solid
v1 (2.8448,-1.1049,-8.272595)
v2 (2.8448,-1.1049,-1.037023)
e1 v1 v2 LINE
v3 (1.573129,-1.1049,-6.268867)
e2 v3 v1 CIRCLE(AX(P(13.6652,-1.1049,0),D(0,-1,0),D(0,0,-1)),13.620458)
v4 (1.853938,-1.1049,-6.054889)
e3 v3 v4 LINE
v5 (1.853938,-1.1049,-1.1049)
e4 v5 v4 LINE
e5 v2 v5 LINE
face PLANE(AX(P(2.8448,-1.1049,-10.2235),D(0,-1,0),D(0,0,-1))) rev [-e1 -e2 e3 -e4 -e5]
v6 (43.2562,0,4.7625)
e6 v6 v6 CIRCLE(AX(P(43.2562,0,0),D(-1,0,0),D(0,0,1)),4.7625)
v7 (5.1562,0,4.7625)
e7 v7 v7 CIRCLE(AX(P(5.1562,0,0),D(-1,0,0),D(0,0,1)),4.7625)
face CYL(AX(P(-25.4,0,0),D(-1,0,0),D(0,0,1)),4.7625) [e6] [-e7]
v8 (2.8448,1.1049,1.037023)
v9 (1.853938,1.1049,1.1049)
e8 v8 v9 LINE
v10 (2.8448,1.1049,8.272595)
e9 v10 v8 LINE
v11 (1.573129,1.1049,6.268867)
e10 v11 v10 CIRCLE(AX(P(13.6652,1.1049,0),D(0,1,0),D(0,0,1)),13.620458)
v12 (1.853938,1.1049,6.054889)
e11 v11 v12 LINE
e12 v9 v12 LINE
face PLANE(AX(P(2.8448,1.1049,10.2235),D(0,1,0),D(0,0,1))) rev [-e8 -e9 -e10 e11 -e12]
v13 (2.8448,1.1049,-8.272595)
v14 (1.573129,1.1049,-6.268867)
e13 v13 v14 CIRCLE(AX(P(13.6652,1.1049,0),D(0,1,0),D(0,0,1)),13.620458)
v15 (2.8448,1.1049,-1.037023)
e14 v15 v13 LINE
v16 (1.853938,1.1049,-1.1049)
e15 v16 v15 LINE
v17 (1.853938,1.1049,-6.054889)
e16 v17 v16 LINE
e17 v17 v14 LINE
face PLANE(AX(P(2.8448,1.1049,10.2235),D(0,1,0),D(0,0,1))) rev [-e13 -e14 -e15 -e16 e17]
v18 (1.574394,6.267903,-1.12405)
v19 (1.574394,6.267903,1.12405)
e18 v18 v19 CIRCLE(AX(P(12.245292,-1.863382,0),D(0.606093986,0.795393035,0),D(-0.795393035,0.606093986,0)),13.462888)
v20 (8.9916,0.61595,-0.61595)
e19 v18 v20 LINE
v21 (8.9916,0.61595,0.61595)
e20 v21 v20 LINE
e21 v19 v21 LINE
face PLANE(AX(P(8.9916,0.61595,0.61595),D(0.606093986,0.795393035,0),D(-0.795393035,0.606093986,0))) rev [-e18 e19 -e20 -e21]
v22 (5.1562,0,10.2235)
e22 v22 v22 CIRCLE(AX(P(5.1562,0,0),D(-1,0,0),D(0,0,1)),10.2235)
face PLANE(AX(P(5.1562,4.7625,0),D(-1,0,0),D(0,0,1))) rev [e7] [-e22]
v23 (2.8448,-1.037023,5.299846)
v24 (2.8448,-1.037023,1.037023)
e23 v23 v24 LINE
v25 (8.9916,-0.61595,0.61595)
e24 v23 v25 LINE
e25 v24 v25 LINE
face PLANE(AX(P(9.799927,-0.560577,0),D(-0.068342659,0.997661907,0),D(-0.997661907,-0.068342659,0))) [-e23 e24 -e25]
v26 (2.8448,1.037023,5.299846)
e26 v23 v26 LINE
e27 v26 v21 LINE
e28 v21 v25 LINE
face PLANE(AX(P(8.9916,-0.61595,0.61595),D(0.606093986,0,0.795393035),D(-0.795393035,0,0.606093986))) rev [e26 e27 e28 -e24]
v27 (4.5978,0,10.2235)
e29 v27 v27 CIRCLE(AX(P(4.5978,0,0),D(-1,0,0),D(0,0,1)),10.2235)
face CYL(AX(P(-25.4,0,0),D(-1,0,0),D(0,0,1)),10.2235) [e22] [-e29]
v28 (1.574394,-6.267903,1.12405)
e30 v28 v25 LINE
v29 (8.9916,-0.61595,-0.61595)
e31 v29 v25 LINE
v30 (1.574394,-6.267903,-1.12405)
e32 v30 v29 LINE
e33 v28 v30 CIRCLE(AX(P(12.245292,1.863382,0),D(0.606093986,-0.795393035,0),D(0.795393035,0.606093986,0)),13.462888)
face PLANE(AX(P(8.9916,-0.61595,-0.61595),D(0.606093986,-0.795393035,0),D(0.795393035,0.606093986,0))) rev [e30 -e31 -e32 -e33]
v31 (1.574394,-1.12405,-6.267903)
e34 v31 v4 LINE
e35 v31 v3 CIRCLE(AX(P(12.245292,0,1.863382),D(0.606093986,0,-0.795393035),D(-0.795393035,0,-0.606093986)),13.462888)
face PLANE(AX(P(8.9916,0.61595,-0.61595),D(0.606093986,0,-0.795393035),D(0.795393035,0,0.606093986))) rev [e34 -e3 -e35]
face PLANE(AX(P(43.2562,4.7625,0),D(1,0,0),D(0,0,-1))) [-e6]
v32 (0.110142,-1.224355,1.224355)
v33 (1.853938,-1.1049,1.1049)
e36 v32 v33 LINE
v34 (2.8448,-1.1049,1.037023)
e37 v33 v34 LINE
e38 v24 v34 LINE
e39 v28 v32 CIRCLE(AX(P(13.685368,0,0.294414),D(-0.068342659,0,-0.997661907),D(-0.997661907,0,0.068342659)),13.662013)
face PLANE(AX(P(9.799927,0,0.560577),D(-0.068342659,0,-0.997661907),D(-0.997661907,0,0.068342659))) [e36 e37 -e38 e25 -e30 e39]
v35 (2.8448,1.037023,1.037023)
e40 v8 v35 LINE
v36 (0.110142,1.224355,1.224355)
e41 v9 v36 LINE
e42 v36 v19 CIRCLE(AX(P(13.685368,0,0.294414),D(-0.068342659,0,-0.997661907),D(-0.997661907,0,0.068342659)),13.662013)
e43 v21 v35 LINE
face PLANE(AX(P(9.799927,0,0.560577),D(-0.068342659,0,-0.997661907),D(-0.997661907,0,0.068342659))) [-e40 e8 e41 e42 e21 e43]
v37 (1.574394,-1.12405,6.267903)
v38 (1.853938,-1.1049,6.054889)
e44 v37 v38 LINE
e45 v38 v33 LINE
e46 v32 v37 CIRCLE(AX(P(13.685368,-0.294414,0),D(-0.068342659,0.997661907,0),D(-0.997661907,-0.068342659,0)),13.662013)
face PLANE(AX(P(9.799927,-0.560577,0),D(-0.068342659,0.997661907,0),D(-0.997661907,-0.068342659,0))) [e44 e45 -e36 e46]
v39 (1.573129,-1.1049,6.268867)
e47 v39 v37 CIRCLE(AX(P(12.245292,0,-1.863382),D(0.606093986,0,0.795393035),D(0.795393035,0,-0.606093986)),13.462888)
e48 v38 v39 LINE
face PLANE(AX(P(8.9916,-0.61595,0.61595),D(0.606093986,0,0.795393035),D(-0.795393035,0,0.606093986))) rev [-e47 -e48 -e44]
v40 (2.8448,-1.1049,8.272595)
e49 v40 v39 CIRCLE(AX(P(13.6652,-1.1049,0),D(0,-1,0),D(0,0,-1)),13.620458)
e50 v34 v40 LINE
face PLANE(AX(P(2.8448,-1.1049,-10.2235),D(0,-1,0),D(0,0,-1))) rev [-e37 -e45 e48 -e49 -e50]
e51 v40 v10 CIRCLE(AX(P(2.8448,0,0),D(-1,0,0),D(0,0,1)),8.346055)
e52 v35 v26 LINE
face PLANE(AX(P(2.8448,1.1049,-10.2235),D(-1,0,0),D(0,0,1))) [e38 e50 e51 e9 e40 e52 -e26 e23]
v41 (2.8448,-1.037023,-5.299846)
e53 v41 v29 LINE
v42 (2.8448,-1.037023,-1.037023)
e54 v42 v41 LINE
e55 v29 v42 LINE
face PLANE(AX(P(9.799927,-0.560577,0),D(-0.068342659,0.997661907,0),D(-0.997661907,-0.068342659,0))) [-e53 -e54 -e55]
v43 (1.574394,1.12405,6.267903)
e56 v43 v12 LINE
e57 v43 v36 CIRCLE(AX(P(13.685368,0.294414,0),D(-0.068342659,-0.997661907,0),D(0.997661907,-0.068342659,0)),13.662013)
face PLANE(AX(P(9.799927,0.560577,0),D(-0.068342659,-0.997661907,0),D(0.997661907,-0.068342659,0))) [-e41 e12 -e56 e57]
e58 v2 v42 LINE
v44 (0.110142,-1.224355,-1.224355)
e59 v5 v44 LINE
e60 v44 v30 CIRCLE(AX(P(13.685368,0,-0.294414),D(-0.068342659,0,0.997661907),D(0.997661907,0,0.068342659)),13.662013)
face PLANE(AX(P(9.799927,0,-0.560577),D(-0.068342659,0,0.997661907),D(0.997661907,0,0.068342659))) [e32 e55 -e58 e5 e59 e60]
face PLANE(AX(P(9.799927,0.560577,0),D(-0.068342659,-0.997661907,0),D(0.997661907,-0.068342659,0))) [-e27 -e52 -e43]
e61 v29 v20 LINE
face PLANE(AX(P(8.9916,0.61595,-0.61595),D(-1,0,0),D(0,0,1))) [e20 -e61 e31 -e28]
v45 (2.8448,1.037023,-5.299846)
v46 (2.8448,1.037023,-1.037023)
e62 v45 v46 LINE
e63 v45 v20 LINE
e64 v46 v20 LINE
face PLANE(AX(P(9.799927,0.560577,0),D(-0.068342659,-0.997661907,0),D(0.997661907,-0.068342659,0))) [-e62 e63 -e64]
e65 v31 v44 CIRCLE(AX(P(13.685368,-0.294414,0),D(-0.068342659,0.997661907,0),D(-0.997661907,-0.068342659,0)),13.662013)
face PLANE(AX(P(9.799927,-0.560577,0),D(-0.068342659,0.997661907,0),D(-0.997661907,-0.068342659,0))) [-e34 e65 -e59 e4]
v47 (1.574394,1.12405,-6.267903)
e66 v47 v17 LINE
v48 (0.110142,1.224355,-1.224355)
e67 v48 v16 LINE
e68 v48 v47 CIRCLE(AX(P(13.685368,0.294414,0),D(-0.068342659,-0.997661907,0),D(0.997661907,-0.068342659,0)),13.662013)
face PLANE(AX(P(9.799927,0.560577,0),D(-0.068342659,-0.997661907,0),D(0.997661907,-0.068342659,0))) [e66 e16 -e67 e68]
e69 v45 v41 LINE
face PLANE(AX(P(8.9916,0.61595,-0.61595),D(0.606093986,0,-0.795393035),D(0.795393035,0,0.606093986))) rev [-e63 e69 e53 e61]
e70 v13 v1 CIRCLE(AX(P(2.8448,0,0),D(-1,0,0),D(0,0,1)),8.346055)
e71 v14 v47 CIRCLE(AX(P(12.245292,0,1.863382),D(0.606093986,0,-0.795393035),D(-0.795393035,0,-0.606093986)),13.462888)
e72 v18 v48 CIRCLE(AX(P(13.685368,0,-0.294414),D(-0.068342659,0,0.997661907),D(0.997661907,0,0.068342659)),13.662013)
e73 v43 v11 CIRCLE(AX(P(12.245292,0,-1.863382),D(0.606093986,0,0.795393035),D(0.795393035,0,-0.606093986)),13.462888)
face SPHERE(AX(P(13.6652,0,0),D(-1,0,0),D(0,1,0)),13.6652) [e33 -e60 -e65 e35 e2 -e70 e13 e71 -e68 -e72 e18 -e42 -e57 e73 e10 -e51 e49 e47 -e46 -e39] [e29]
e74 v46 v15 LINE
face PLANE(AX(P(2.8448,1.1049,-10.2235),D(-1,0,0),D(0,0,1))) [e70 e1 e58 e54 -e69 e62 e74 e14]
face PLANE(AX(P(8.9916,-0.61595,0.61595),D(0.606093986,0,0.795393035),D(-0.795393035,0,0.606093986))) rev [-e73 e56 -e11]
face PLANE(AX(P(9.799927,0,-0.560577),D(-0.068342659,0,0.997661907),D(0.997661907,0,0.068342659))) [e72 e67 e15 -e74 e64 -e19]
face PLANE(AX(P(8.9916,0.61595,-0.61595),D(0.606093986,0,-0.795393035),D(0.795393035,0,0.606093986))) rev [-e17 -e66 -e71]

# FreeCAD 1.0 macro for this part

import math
import FreeCAD as App
import Part
import Sketcher

V = App.Vector
Q = App.Units.Quantity

doc = App.newDocument("Part")
body = doc.addObject("PartDesign::Body", "Body")

# Sketch on XY plane
sketch1 = body.newObject("Sketcher::SketchObject", "Sketch")
sketch1.AttachmentSupport = (doc.getObject("XY_Plane"), [""])
sketch1.MapMode = "FlatFace"
sketch1.addGeometry([
    Part.LineSegment(V(5.2, 4.8, 0), V(5.2, 10.2, 0)),  # 0
    Part.LineSegment(V(5.2, 10.2, 0), V(4.6, 10.2, 0)),  # 1
    Part.ArcOfCircle(Part.Circle(V(13.7, 0, 0), V(0, 0, 1), 13.7), math.radians(132), math.radians(180)),  # 2
    Part.LineSegment(V(0, 0, 0), V(43.3, 0, 0)),  # 3
    Part.LineSegment(V(43.3, 0, 0), V(43.3, 4.8, 0)),  # 4
    Part.LineSegment(V(43.3, 4.8, 0), V(5.2, 4.8, 0)),  # 5
], False)
sketch1.addConstraint([
    Sketcher.Constraint("Coincident", 0, 2, 1, 1),
    Sketcher.Constraint("Coincident", 1, 2, 2, 1),
    Sketcher.Constraint("Coincident", 2, 2, 3, 1),
    Sketcher.Constraint("Coincident", 3, 2, 4, 1),
    Sketcher.Constraint("Coincident", 4, 2, 5, 1),
    Sketcher.Constraint("Coincident", 5, 2, 0, 1),
    Sketcher.Constraint("Vertical", 0),
    Sketcher.Constraint("Horizontal", 1),
    Sketcher.Constraint("Horizontal", 3),
    Sketcher.Constraint("Vertical", 4),
    Sketcher.Constraint("Horizontal", 5),
    Sketcher.Constraint("Coincident", 2, 2, -1, 1),
    Sketcher.Constraint("PointOnObject", 2, 3, -1),
    Sketcher.Constraint("DistanceX", 5, 2, 5, 1, Q("1.5 in")),
    Sketcher.Constraint("Radius", 2, Q("0.538 in")),
    Sketcher.Constraint("DistanceX", 3, 1, 3, 2, Q("1.703 in")),
    Sketcher.Constraint("DistanceY", 0, 1, 0, 2, Q("0.215 in")),
    Sketcher.Constraint("DistanceY", 4, 1, 4, 2, Q("0.1875 in")),
])
revolution = body.newObject("PartDesign::Revolution", "Revolution")
revolution.Profile = sketch1
revolution.ReferenceAxis = (sketch1, ["H_Axis"])
revolution.Angle = 360

# Sketch on YZ plane
sketch2 = body.newObject("Sketcher::SketchObject", "Sketch001")
sketch2.AttachmentSupport = (doc.getObject("YZ_Plane"), [""])
sketch2.MapMode = "FlatFace"
sketch2.addGeometry([
    Part.LineSegment(V(1.1, 10.2, 0), V(-1.1, 10.2, 0)),
    Part.LineSegment(V(-1.1, 10.2, 0), V(-1.1, -10.2, 0)),
    Part.LineSegment(V(-1.1, -10.2, 0), V(1.1, -10.2, 0)),
    Part.LineSegment(V(1.1, -10.2, 0), V(1.1, 10.2, 0)),
], False)
sketch2.addConstraint([
    Sketcher.Constraint("Coincident", 0, 2, 1, 1),
    Sketcher.Constraint("Coincident", 1, 2, 2, 1),
    Sketcher.Constraint("Coincident", 2, 2, 3, 1),
    Sketcher.Constraint("Coincident", 3, 2, 0, 1),
    Sketcher.Constraint("Horizontal", 0),
    Sketcher.Constraint("Vertical", 1),
    Sketcher.Constraint("Horizontal", 2),
    Sketcher.Constraint("Vertical", 3),
    Sketcher.Constraint("Symmetric", 0, 2, 2, 2, -1, 1),
    Sketcher.Constraint("DistanceX", 0, 2, 0, 1, Q("0.087 in")),
    Sketcher.Constraint("DistanceY", 1, 2, 1, 1, Q("0.805 in")),
])
pocket1 = body.newObject("PartDesign::Pocket", "Pocket")
pocket1.Profile = sketch2
pocket1.Length = Q("0.112 in")
pocket1.Reversed = True

# Sketch on YZ plane
sketch3 = body.newObject("Sketcher::SketchObject", "Sketch002")
sketch3.AttachmentSupport = (doc.getObject("YZ_Plane"), [""])
sketch3.MapMode = "FlatFace"
sketch3.addGeometry([
    Part.LineSegment(V(-7.5, 1.2, 0), V(-7.5, -1.2, 0)),
    Part.LineSegment(V(-7.5, -1.2, 0), V(7.5, -1.2, 0)),
    Part.LineSegment(V(7.5, -1.2, 0), V(7.5, 1.2, 0)),
    Part.LineSegment(V(7.5, 1.2, 0), V(-7.5, 1.2, 0)),
], False)
sketch3.addConstraint([
    Sketcher.Constraint("Coincident", 0, 2, 1, 1),
    Sketcher.Constraint("Coincident", 1, 2, 2, 1),
    Sketcher.Constraint("Coincident", 2, 2, 3, 1),
    Sketcher.Constraint("Coincident", 3, 2, 0, 1),
    Sketcher.Constraint("Vertical", 0),
    Sketcher.Constraint("Horizontal", 1),
    Sketcher.Constraint("Vertical", 2),
    Sketcher.Constraint("Horizontal", 3),
    Sketcher.Constraint("Symmetric", 0, 2, 2, 2, -1, 1),
    Sketcher.Constraint("DistanceX", 1, 1, 1, 2, Q("0.588 in")),
    Sketcher.Constraint("DistanceY", 0, 2, 0, 1, Q("0.097 in")),
])

# Sketch on YZ plane
sketch4 = body.newObject("Sketcher::SketchObject", "Sketch003")
sketch4.AttachmentSupport = (doc.getObject("YZ_Plane"), [""])
sketch4.MapMode = "FlatFace"
sketch4.AttachmentOffset = App.Placement(V(0, 0, 0.354 * 25.4), App.Rotation())
sketch4.addGeometry([
    Part.LineSegment(V(-0.6, 0.6, 0), V(-0.6, -0.6, 0)),
    Part.LineSegment(V(-0.6, -0.6, 0), V(0.6, -0.6, 0)),
    Part.LineSegment(V(0.6, -0.6, 0), V(0.6, 0.6, 0)),
    Part.LineSegment(V(0.6, 0.6, 0), V(-0.6, 0.6, 0)),
], False)
sketch4.addConstraint([
    Sketcher.Constraint("Coincident", 0, 2, 1, 1),
    Sketcher.Constraint("Coincident", 1, 2, 2, 1),
    Sketcher.Constraint("Coincident", 2, 2, 3, 1),
    Sketcher.Constraint("Coincident", 3, 2, 0, 1),
    Sketcher.Constraint("Vertical", 0),
    Sketcher.Constraint("Horizontal", 1),
    Sketcher.Constraint("Vertical", 2),
    Sketcher.Constraint("Horizontal", 3),
    Sketcher.Constraint("Symmetric", 0, 2, 2, 2, -1, 1),
    Sketcher.Constraint("Equal", 3, 0),
    Sketcher.Constraint("DistanceX", 1, 1, 1, 2, Q("0.0485 in")),
])

subtractiveloft = body.newObject("PartDesign::SubtractiveLoft", "SubtractiveLoft")
subtractiveloft.Profile = sketch3
subtractiveloft.Sections = [sketch4]
doc.recompute()

polarpattern = body.newObject("PartDesign::PolarPattern", "PolarPattern")
polarpattern.Originals = [subtractiveloft]
polarpattern.Axis = (doc.getObject("X_Axis"), [""])
polarpattern.Angle = 90
polarpattern.Occurrences = 2
body.Tip = polarpattern

doc.recompute()
